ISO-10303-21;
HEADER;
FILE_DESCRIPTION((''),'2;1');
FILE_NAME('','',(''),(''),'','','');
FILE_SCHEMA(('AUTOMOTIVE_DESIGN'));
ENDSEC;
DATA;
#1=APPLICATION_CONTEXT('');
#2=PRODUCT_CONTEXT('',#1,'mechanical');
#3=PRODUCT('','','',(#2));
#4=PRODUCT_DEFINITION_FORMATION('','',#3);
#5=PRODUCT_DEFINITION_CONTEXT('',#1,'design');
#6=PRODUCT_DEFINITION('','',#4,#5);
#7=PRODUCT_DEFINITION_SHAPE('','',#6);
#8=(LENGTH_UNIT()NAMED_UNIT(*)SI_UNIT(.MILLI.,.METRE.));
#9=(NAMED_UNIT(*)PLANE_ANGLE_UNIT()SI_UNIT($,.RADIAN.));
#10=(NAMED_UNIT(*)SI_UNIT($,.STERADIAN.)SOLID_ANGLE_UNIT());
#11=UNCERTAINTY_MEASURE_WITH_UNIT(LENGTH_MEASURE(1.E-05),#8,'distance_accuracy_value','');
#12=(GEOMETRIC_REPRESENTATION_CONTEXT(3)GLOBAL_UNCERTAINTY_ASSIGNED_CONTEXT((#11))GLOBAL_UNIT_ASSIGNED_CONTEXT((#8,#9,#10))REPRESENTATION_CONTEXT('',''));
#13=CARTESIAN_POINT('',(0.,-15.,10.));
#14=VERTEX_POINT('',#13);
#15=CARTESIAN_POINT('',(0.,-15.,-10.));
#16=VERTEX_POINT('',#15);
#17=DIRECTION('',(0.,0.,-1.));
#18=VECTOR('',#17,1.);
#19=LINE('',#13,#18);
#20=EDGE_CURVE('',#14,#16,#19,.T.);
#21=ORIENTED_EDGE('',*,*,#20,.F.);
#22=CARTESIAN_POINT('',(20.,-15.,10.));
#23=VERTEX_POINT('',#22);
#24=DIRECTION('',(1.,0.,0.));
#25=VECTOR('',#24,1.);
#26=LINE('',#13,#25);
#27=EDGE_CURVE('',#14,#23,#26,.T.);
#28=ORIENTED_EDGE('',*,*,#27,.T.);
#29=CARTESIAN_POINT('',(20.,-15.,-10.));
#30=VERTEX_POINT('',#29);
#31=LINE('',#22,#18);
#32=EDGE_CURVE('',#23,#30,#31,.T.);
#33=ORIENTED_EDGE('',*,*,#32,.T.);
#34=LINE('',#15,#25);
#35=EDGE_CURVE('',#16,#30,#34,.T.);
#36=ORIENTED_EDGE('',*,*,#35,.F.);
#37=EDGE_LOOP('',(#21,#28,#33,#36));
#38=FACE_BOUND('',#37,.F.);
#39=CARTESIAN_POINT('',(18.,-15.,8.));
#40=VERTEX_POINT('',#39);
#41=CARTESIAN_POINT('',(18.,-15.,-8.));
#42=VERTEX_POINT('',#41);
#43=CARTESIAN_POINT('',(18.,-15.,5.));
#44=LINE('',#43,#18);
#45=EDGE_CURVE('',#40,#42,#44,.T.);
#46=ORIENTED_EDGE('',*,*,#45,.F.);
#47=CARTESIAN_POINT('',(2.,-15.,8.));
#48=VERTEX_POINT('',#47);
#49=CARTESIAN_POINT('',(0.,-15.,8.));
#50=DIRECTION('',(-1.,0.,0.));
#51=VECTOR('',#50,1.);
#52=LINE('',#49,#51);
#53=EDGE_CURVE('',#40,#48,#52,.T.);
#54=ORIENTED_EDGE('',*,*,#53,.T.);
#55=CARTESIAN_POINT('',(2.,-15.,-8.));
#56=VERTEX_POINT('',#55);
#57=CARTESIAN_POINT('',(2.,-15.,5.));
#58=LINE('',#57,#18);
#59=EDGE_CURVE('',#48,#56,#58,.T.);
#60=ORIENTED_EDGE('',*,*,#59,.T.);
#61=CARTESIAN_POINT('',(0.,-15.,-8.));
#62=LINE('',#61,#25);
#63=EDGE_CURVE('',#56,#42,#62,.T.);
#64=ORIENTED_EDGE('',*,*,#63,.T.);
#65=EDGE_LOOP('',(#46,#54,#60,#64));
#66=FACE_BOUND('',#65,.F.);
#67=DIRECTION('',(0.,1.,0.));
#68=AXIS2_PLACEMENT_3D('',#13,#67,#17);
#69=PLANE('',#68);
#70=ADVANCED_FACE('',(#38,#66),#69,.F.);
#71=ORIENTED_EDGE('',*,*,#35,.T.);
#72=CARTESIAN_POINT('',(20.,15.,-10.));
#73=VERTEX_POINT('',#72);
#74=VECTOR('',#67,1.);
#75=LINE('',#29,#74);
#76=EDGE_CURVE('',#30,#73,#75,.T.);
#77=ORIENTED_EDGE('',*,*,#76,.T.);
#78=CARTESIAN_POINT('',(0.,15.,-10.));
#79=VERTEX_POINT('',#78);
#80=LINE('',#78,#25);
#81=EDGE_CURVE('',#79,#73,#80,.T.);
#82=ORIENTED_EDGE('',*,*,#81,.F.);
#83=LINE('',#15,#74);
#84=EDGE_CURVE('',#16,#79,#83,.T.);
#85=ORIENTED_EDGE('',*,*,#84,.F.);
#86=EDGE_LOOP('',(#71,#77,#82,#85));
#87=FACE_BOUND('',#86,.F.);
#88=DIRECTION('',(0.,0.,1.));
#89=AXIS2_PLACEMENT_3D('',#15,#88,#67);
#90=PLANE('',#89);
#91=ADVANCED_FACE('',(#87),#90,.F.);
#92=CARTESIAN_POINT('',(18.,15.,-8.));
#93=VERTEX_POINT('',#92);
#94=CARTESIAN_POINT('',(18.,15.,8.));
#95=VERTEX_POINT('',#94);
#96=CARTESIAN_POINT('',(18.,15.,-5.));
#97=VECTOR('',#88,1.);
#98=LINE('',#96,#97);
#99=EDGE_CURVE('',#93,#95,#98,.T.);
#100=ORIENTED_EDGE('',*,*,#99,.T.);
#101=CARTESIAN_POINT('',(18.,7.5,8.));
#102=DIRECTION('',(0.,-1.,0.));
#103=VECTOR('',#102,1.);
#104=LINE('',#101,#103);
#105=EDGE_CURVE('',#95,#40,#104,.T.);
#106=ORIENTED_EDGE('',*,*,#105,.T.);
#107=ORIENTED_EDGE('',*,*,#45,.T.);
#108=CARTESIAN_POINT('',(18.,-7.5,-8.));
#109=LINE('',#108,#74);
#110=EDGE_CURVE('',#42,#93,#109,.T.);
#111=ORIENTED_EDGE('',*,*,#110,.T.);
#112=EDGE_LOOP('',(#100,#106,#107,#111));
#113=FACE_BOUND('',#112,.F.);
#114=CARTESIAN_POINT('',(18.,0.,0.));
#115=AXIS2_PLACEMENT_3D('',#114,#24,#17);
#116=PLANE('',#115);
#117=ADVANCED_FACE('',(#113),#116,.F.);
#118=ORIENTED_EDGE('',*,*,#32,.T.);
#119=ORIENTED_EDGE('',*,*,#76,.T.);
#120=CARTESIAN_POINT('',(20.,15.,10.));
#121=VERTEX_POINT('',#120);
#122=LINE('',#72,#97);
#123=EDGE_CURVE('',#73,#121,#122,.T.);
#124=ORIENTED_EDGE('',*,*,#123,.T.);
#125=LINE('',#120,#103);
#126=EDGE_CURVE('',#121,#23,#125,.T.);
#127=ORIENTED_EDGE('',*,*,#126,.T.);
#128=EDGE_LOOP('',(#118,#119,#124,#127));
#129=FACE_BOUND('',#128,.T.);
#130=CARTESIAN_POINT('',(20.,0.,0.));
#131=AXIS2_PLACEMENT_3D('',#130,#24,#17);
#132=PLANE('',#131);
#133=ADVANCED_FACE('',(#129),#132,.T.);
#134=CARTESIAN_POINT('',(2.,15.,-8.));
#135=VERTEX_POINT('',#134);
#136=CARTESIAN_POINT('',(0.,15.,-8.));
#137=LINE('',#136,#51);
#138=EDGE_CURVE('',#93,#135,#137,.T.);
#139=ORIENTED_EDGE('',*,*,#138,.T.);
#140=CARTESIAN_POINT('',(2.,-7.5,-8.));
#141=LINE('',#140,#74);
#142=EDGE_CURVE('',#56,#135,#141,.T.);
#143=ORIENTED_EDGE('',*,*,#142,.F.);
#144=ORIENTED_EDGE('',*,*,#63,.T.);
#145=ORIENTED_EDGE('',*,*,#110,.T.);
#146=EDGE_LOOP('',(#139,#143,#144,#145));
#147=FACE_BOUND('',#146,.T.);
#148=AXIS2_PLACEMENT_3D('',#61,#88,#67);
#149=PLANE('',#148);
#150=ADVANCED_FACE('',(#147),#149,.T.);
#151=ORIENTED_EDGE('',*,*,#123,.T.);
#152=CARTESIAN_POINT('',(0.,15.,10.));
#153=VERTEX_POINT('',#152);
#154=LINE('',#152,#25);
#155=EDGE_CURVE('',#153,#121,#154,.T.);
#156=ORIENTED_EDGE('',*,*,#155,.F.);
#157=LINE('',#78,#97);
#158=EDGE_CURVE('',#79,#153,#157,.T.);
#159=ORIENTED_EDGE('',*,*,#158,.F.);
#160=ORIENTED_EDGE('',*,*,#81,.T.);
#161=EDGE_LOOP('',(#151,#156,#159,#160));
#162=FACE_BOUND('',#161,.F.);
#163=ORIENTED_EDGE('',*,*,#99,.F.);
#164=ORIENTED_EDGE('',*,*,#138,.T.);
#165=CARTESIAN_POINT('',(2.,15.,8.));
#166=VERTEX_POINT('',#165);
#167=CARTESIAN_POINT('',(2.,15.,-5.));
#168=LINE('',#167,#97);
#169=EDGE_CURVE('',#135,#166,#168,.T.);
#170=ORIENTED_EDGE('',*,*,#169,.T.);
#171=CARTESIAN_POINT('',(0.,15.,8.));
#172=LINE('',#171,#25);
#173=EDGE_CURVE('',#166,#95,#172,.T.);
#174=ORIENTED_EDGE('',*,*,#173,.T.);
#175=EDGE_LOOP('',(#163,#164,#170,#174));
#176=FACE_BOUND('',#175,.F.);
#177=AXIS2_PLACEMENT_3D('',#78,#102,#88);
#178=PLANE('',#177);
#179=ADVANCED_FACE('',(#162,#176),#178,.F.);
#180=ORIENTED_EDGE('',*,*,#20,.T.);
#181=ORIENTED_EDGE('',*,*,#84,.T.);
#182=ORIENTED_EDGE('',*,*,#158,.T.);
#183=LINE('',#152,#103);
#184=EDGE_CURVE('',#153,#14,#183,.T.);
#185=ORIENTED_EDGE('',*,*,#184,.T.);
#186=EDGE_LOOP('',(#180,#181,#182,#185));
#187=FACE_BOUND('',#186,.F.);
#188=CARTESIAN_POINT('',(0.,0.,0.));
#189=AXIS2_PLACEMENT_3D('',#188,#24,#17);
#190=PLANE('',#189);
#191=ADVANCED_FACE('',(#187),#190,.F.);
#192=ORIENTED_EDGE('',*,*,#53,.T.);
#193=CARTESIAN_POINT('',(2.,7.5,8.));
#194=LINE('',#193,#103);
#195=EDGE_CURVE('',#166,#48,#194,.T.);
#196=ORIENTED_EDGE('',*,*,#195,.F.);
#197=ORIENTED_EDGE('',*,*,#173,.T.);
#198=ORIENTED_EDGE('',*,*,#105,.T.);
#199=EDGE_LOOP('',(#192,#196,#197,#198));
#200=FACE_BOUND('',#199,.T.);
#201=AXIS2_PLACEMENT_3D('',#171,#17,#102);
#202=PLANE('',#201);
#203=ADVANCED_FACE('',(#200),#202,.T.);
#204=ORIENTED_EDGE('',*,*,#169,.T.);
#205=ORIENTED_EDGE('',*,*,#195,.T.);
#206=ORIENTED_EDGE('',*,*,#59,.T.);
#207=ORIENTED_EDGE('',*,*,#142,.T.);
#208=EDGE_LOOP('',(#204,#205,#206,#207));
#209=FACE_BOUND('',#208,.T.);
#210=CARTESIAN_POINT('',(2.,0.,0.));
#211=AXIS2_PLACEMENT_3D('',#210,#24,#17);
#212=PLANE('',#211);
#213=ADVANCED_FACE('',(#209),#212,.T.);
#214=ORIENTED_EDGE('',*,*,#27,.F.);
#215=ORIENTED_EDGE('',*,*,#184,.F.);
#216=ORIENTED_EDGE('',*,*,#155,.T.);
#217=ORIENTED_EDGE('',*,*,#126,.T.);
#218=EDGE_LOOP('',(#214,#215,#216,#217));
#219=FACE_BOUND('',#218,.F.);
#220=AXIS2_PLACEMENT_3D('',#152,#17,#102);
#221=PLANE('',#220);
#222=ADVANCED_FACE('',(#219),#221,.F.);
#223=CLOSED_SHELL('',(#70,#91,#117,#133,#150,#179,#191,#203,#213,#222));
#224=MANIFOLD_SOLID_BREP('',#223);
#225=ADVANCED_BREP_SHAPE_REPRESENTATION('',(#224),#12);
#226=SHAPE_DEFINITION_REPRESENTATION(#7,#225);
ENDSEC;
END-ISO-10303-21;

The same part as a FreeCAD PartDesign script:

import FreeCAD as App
import Part
import Sketcher

V = App.Vector
Q = App.Units.Quantity


def faces_at(feature, points):
    """Names of the faces that lie closest to the given points."""
    faces = feature.Shape.Faces
    near = lambda p: min(range(len(faces)), key=lambda i: faces[i].distToShape(Part.Vertex(*p))[0])
    return sorted({f"Face{near(p) + 1}" for p in points})

doc = App.newDocument("Part")
body = doc.addObject("PartDesign::Body", "Body")

sketch1 = body.newObject("Sketcher::SketchObject", "Sketch")
sketch1.AttachmentSupport = (doc.getObject("YZ_Plane"), [""])
sketch1.MapMode = "FlatFace"
sketch1.addGeometry([
    Part.LineSegment(V(15, 10, 0), V(-15, 10, 0)),
    Part.LineSegment(V(-15, 10, 0), V(-15, -10, 0)),
    Part.LineSegment(V(-15, -10, 0), V(15, -10, 0)),
    Part.LineSegment(V(15, -10, 0), V(15, 10, 0)),
], False)
sketch1.addConstraint([
    Sketcher.Constraint("Coincident", 0, 2, 1, 1),
    Sketcher.Constraint("Coincident", 1, 2, 2, 1),
    Sketcher.Constraint("Coincident", 2, 2, 3, 1),
    Sketcher.Constraint("Coincident", 3, 2, 0, 1),
    Sketcher.Constraint("Horizontal", 0),
    Sketcher.Constraint("Vertical", 1),
    Sketcher.Constraint("Horizontal", 2),
    Sketcher.Constraint("Vertical", 3),
    Sketcher.Constraint("Symmetric", 0, 2, 2, 2, -1, 1),
    Sketcher.Constraint("DistanceX", 0, 2, 0, 1, Q("30 mm")),
    Sketcher.Constraint("DistanceY", 1, 2, 1, 1, Q("20 mm")),
])
pad1 = body.newObject("PartDesign::Pad", "Pad")
pad1.Profile = sketch1
pad1.Length = 20
doc.recompute()

thickness = body.newObject("PartDesign::Thickness", "Thickness")
thickness.Base = (pad1, faces_at(pad1, [(6.667, -15, 3.333), (6.667, 15, -3.333)]))
thickness.Value = 2
thickness.Reversed = True
thickness.Join = "Intersection"

doc.recompute()
